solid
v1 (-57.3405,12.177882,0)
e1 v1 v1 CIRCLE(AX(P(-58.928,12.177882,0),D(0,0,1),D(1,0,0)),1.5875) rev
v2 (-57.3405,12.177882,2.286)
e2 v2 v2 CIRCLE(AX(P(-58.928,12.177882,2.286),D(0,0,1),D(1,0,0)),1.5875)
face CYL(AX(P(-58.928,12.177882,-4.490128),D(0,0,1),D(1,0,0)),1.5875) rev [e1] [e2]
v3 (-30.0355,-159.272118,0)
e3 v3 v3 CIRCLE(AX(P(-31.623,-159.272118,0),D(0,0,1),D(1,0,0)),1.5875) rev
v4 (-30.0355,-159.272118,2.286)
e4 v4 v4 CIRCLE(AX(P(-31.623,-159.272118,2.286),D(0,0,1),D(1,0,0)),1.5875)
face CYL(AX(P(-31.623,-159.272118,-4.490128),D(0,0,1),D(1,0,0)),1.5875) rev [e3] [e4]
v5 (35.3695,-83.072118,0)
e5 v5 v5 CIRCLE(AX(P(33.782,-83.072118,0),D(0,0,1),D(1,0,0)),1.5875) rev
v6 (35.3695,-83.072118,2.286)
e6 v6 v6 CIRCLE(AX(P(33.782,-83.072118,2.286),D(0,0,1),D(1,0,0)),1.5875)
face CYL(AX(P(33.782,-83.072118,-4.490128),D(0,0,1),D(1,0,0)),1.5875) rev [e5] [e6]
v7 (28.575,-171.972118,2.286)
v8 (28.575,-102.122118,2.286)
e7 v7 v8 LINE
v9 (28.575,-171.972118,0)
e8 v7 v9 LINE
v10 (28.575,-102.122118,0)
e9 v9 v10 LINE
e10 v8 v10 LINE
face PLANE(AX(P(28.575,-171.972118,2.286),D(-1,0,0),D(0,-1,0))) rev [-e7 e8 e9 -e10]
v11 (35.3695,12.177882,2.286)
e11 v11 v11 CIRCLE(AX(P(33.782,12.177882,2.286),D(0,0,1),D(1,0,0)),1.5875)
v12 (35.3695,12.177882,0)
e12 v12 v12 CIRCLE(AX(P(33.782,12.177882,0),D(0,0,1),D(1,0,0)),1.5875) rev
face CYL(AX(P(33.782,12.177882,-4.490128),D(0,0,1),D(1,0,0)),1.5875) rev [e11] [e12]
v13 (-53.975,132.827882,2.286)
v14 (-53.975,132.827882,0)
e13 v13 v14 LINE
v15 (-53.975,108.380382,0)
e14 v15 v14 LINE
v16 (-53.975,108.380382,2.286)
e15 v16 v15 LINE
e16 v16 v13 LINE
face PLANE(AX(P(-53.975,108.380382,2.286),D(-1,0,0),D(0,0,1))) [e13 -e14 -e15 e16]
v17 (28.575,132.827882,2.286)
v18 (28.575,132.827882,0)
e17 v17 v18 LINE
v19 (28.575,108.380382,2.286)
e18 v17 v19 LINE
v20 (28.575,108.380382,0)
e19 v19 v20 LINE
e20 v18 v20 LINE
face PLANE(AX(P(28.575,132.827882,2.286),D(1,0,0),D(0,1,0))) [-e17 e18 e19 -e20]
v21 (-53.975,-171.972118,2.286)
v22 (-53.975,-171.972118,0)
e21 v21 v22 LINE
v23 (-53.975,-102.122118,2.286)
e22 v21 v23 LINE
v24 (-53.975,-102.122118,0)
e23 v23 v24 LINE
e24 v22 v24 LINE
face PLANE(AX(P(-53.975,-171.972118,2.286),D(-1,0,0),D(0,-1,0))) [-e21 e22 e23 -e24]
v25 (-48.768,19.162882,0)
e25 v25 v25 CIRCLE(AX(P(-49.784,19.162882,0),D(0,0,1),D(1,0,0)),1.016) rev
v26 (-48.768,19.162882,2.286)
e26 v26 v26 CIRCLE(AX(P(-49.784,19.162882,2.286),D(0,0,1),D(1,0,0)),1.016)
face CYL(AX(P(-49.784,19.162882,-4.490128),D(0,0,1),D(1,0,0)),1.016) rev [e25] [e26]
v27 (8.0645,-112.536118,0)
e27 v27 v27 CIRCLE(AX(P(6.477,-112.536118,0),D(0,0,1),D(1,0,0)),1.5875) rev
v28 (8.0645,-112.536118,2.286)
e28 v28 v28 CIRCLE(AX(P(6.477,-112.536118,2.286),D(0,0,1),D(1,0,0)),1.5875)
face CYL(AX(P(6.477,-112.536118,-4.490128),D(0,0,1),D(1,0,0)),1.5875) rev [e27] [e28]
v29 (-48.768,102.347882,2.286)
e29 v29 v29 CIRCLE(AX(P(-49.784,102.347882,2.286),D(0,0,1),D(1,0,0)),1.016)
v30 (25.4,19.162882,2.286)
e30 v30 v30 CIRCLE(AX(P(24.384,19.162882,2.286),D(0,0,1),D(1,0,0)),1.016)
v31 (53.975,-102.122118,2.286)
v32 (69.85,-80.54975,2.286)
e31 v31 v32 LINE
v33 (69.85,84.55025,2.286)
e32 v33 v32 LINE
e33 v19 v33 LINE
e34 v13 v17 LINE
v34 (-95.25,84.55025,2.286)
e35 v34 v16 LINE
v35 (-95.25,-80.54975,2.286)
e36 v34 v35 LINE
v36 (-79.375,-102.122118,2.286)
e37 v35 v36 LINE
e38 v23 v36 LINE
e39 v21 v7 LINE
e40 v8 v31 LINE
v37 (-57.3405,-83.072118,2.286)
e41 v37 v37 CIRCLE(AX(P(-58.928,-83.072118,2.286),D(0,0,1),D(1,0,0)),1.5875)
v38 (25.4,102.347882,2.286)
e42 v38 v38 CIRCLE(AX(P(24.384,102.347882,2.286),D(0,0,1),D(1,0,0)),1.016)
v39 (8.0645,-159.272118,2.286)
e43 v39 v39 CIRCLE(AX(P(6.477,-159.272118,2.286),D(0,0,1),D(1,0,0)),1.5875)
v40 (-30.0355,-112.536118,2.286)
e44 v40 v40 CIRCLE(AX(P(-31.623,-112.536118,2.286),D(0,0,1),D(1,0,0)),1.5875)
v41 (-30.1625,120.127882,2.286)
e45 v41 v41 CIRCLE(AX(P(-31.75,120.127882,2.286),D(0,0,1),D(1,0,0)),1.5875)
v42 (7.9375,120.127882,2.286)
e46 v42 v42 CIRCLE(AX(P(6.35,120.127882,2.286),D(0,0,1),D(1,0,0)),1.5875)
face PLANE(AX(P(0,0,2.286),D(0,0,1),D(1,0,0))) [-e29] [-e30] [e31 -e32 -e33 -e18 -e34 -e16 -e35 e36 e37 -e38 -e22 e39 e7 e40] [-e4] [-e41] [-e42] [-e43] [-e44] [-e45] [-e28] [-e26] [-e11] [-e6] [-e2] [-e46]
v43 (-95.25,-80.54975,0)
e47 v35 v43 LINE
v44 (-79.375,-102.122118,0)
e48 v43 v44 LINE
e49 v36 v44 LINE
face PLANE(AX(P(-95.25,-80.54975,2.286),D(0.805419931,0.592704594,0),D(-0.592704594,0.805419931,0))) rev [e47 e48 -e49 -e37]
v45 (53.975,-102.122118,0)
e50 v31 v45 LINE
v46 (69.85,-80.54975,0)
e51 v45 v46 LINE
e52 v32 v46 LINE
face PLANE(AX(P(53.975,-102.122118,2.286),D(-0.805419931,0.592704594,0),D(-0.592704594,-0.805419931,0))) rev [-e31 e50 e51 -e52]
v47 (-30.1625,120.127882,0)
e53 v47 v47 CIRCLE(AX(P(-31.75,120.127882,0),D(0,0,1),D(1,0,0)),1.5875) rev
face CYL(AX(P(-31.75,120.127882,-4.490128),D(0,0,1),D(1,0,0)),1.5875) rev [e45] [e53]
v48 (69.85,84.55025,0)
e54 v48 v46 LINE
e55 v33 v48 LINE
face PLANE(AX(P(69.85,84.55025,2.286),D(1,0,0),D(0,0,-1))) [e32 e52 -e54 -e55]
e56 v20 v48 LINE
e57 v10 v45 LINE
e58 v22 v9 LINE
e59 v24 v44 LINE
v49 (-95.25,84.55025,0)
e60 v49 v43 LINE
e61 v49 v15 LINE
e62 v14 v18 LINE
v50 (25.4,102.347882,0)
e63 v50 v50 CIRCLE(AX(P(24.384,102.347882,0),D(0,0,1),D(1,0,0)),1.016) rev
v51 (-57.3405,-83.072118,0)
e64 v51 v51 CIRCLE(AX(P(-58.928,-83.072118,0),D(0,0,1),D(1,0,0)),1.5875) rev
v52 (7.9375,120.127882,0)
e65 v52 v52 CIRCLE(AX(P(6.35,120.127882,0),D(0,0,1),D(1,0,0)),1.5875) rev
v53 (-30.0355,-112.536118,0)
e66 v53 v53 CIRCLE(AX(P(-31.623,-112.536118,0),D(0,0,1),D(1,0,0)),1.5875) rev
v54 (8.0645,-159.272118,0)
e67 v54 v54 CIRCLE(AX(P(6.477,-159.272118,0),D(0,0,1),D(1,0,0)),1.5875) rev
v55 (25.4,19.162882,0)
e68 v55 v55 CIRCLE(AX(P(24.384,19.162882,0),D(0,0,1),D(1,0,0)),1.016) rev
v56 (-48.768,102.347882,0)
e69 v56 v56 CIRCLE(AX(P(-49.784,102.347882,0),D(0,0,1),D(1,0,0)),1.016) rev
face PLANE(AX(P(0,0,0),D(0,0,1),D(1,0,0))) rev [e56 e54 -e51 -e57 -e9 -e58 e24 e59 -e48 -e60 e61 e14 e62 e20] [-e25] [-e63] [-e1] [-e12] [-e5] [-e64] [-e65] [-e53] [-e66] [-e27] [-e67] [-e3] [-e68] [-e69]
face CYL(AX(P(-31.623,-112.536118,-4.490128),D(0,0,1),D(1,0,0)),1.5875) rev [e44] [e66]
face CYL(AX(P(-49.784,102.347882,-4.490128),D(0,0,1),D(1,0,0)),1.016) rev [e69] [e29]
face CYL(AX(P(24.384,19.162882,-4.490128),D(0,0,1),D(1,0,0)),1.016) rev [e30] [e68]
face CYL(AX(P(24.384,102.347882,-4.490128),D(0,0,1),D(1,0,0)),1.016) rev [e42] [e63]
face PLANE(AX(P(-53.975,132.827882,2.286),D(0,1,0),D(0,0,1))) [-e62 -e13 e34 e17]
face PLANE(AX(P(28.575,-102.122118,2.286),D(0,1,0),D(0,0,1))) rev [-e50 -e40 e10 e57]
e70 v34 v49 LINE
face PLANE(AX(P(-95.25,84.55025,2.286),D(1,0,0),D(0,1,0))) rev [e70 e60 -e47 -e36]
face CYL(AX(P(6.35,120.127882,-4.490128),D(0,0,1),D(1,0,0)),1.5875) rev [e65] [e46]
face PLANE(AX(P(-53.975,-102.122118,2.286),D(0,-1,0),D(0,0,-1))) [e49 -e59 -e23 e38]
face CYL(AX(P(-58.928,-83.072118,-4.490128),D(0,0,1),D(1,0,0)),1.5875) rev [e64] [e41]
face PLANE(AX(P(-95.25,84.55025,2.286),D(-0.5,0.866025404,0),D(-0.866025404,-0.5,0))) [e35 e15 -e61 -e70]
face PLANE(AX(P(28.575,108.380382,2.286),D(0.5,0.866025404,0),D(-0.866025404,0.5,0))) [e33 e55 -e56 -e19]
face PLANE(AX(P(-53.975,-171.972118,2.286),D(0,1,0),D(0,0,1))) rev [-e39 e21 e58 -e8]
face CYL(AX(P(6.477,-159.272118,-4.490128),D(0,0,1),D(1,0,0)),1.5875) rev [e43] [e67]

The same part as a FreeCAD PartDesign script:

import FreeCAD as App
import Part
import Sketcher
Q = App.Units.Quantity


def add_polygon(sketch, points):
    """Adds a closed chain of lines whose ends are joined by coincident constraints."""
    first, n = sketch.GeometryCount, len(points)
    for a, b in zip(points, points[1:] + points[:1]):
        sketch.addGeometry(Part.LineSegment(App.Vector(*a, 0), App.Vector(*b, 0)), False)
    for i in range(n):
        sketch.addConstraint(Sketcher.Constraint("Coincident", first + i, 2, first + (i + 1) % n, 1))

doc = App.newDocument("Part")
body = doc.addObject("PartDesign::Body", "Body")

# Sketch on XY plane
sketch1 = doc.addObject("Sketcher::SketchObject", "Sketch")
body.addObject(sketch1)
sketch1.AttachmentSupport = (doc.XY_Plane, [""])
sketch1.MapMode = "FlatFace"
add_polygon(sketch1, [(70, 85), (29, 108), (29, 133), (-54, 133), (-54, 108), (-95, 85), (-95, -81), (-79, -102), (-54, -102), (-54, -172), (29, -172), (29, -102), (54, -102), (70, -81)])  # lines 0-13
sketch1.addConstraint([
    Sketcher.Constraint("Vertical", 1),
    Sketcher.Constraint("Horizontal", 2),
    Sketcher.Constraint("Vertical", 3),
    Sketcher.Constraint("Vertical", 5),
    Sketcher.Constraint("Horizontal", 7),
    Sketcher.Constraint("Vertical", 8),
    Sketcher.Constraint("Horizontal", 9),
    Sketcher.Constraint("Vertical", 10),
    Sketcher.Constraint("Horizontal", 11),
    Sketcher.Constraint("Vertical", 13),
    Sketcher.Constraint("Symmetric", 7, 2, 11, 2, -2),
    Sketcher.Constraint("Horizontal", 0, 2, 3, 2),
    Sketcher.Constraint("Horizontal", 5, 2, 12, 2),
    Sketcher.Constraint("Horizontal", 4, 2, 13, 2),
    Sketcher.Constraint("Vertical", 3, 2, 7, 2),
    Sketcher.Constraint("Vertical", 1, 2, 9, 2),
    Sketcher.Constraint("Equal", 7, 11),
    Sketcher.Constraint("Equal", 0, 4),
    Sketcher.Constraint("DistanceX", 7, 1, 7, 2, Q("1 in")),
    Sketcher.Constraint("DistanceY", 5, 2, 5, 1, Q("6.5 in")),
    Sketcher.Constraint("Angle", 0, Q("150 deg")),
    Sketcher.Constraint("DistanceX", 2, 2, 2, 1, Q("3.25 in")),
    Sketcher.Constraint("DistanceY", 8, 2, 8, 1, Q("2.75 in")),
    Sketcher.Constraint("DistanceX", 4, 2, 13, 2, Q("6.5 in")),
    Sketcher.Constraint("DistanceY", 6, 2, 2, 2, Q("9.25 in")),
    Sketcher.Constraint("DistanceY", 1, 1, 1, 2, Q("0.9625 in")),
    Sketcher.Constraint("DistanceY", -1, 1, 4, 2, Q("84.55025 mm")),
])
pad1 = doc.addObject("PartDesign::Pad", "Pad")
body.addObject(pad1)
pad1.Profile = sketch1
pad1.Length = Q("0.09 in")

# Sketch on XY plane
sketch2 = doc.addObject("Sketcher::SketchObject", "Sketch001")
body.addObject(sketch2)
sketch2.AttachmentSupport = (doc.XY_Plane, [""])
sketch2.MapMode = "FlatFace"
sketch2.AttachmentOffset = App.Placement(App.Vector(0, 0, 0.09 * 25.4), App.Rotation())
sketch2.addGeometry([
    Part.Circle(App.Vector(-31.6, -159.3, 0), App.Vector(0, 0, 1), 1.6),  # 0
    Part.Circle(App.Vector(6.5, -159.3, 0), App.Vector(0, 0, 1), 1.6),  # 1
    Part.Circle(App.Vector(-31.8, 120.1, 0), App.Vector(0, 0, 1), 1.6),  # 2
    Part.Circle(App.Vector(6.3, 120.1, 0), App.Vector(0, 0, 1), 1.6),  # 3
    Part.Circle(App.Vector(-58.9, -83.1, 0), App.Vector(0, 0, 1), 1.6),  # 4
    Part.Circle(App.Vector(33.8, -83.1, 0), App.Vector(0, 0, 1), 1.6),  # 5
    Part.Circle(App.Vector(-58.9, 12.2, 0), App.Vector(0, 0, 1), 1.6),  # 6
    Part.Circle(App.Vector(33.8, 12.2, 0), App.Vector(0, 0, 1), 1.6),  # 7
    Part.Circle(App.Vector(-31.6, -112.5, 0), App.Vector(0, 0, 1), 1.6),  # 8
    Part.Circle(App.Vector(6.5, -112.5, 0), App.Vector(0, 0, 1), 1.6),  # 9
    Part.Circle(App.Vector(-49.8, 102.3, 0), App.Vector(0, 0, 1), 1),  # 10
    Part.Circle(App.Vector(24.4, 102.3, 0), App.Vector(0, 0, 1), 1),  # 11
    Part.Circle(App.Vector(-49.8, 19.2, 0), App.Vector(0, 0, 1), 1),  # 12
    Part.Circle(App.Vector(24.4, 19.2, 0), App.Vector(0, 0, 1), 1),  # 13
], False)
sketch2.addConstraint([
    Sketcher.Constraint("Equal", 0, 1),
    Sketcher.Constraint("Equal", 1, 2),
    Sketcher.Constraint("Equal", 2, 3),
    Sketcher.Constraint("Equal", 3, 4),
    Sketcher.Constraint("Equal", 4, 5),
    Sketcher.Constraint("Equal", 5, 6),
    Sketcher.Constraint("Equal", 6, 7),
    Sketcher.Constraint("Equal", 7, 8),
    Sketcher.Constraint("Equal", 8, 9),
    Sketcher.Constraint("Equal", 10, 11),
    Sketcher.Constraint("Equal", 11, 12),
    Sketcher.Constraint("Equal", 12, 13),
    Sketcher.Constraint("Horizontal", 0, 3, 1, 3),
    Sketcher.Constraint("Horizontal", 2, 3, 3, 3),
    Sketcher.Constraint("Horizontal", 4, 3, 5, 3),
    Sketcher.Constraint("Horizontal", 6, 3, 7, 3),
    Sketcher.Constraint("Horizontal", 8, 3, 9, 3),
    Sketcher.Constraint("Horizontal", 10, 3, 11, 3),
    Sketcher.Constraint("Horizontal", 12, 3, 13, 3),
    Sketcher.Constraint("Vertical", 4, 3, 6, 3),
    Sketcher.Constraint("Vertical", 5, 3, 7, 3),
    Sketcher.Constraint("Vertical", 0, 3, 8, 3),
    Sketcher.Constraint("Vertical", 1, 3, 9, 3),
    Sketcher.Constraint("Vertical", 10, 3, 12, 3),
    Sketcher.Constraint("Vertical", 11, 3, 13, 3),
    Sketcher.Constraint("Diameter", 10, Q("0.08 in")),
    Sketcher.Constraint("Diameter", 0, Q("0.125 in")),
    Sketcher.Constraint("DistanceY", 0, 3, 2, 3, Q("11 in")),
    Sketcher.Constraint("DistanceY", 0, 3, 4, 3, Q("3 in")),
    Sketcher.Constraint("DistanceX", 0, 3, 1, 3, Q("1.5 in")),
    Sketcher.Constraint("DistanceX", 2, 3, 3, 3, Q("1.5 in")),
    Sketcher.Constraint("DistanceY", 10, 3, 2, 3, Q("0.7 in")),
    Sketcher.Constraint("DistanceX", 2, 3, -1, 1, Q("1.25 in")),
    Sketcher.Constraint("DistanceX", 4, 3, -1, 1, Q("2.32 in")),
    Sketcher.Constraint("DistanceX", -1, 1, 5, 3, Q("1.33 in")),
    Sketcher.Constraint("DistanceX", 10, 3, -1, 1, Q("1.96 in")),
    Sketcher.Constraint("DistanceX", -1, 1, 11, 3, Q("0.96 in")),
    Sketcher.Constraint("DistanceY", 4, 3, 6, 3, Q("3.75 in")),
    Sketcher.Constraint("DistanceY", 8, 3, 4, 3, Q("1.16 in")),
    Sketcher.Constraint("DistanceX", 0, 3, -1, 1, Q("1.245 in")),
    Sketcher.Constraint("DistanceY", 6, 3, 12, 3, Q("0.275 in")),
    Sketcher.Constraint("DistanceY", 0, 3, -1, 1, Q("159.272118 mm")),
])
pocket1 = doc.addObject("PartDesign::Pocket", "Pocket")
body.addObject(pocket1)
pocket1.Profile = sketch2
pocket1.Length = Q("0.09 in")

doc.recompute()
